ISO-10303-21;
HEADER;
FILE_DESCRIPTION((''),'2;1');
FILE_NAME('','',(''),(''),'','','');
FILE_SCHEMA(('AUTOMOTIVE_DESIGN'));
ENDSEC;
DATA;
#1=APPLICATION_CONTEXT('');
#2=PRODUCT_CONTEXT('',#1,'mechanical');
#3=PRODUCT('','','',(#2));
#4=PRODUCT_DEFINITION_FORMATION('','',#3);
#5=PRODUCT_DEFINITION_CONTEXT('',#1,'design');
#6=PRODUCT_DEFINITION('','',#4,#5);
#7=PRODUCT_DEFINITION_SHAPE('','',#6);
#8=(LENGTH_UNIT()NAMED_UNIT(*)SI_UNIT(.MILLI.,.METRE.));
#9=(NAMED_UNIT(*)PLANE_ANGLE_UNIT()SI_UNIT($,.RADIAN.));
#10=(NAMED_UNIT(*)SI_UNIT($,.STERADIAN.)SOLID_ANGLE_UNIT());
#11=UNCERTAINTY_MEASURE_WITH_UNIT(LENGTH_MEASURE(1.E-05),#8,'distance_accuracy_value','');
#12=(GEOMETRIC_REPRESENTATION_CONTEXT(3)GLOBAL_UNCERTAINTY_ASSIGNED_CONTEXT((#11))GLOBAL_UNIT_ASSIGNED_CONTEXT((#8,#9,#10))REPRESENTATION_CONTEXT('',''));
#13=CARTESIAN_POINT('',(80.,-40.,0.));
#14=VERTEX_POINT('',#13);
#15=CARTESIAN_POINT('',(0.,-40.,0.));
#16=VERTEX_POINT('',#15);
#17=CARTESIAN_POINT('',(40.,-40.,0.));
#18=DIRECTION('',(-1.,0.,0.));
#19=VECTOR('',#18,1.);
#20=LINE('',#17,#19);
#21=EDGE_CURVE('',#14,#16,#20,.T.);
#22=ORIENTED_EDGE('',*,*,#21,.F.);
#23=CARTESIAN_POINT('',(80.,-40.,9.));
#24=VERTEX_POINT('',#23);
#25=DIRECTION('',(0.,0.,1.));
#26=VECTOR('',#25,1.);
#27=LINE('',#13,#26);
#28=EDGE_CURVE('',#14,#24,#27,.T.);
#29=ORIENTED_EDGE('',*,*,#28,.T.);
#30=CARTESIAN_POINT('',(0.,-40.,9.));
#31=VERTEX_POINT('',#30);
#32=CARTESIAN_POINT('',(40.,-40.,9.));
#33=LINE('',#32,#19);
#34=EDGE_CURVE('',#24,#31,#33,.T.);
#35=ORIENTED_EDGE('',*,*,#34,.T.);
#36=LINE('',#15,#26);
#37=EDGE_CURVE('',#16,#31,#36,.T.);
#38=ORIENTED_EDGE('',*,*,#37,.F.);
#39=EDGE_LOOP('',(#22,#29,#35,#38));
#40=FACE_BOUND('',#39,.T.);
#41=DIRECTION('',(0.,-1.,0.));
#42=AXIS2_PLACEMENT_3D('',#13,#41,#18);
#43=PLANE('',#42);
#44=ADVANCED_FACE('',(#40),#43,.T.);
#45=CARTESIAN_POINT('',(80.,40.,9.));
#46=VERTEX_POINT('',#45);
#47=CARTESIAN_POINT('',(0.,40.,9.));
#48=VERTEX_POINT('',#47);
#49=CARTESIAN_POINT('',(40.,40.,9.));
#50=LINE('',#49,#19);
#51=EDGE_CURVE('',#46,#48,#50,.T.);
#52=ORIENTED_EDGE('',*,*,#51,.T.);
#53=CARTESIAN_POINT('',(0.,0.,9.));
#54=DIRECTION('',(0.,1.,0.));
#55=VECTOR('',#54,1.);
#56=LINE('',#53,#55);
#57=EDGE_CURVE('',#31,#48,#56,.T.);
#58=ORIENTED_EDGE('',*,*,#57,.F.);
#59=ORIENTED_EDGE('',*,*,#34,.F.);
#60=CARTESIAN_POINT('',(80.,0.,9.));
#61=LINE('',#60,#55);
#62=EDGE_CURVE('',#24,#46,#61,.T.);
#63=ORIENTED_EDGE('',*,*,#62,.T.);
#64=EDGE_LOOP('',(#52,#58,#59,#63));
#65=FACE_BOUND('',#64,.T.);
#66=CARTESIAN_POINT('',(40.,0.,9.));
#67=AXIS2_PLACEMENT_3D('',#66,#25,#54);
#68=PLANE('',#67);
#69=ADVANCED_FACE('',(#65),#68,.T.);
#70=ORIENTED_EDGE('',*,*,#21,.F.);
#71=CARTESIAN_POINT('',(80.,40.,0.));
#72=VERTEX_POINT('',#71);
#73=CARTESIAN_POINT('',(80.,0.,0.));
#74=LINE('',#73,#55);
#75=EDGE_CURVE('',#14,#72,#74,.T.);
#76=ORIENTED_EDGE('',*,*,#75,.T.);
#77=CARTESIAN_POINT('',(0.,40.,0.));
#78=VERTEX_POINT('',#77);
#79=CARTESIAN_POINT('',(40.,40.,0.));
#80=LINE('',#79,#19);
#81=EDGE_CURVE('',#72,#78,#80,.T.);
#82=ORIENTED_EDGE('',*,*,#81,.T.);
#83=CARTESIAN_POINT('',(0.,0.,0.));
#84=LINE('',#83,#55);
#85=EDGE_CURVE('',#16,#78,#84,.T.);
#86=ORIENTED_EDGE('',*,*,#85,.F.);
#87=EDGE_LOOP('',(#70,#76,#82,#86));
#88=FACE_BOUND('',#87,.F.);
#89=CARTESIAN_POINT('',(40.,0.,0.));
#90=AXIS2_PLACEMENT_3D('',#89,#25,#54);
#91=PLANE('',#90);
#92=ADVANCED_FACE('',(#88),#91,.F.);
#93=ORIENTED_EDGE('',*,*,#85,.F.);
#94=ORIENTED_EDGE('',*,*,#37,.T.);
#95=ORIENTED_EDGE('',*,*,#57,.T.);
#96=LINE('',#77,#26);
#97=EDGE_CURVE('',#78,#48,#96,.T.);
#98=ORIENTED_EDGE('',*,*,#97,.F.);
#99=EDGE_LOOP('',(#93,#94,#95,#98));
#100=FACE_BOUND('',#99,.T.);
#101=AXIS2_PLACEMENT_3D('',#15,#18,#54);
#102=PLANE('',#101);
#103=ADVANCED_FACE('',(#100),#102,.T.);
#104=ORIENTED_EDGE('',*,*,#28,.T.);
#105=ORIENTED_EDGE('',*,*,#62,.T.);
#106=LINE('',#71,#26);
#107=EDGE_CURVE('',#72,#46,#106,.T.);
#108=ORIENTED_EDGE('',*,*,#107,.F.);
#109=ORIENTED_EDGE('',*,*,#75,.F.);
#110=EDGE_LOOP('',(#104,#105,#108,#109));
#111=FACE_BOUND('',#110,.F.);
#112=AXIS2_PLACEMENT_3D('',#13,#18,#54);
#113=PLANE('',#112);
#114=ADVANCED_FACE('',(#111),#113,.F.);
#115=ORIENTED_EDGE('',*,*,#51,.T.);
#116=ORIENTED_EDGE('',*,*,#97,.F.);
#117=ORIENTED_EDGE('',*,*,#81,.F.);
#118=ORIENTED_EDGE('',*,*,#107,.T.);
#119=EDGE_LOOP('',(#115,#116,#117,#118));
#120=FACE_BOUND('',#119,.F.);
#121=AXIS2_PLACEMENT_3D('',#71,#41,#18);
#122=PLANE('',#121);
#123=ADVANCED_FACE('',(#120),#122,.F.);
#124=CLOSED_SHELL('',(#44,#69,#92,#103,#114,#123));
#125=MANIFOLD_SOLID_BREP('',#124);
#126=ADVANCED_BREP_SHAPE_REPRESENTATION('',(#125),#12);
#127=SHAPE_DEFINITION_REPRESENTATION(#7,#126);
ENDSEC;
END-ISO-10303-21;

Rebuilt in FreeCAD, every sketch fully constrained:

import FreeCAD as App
import Part
import Sketcher

doc = App.newDocument("Part")
body = doc.addObject("PartDesign::Body", "Body")

# Sketch on XY plane
sketch1 = body.newObject("Sketcher::SketchObject", "Sketch")
sketch1.AttachmentSupport = (doc.getObject("XY_Plane"), [""])
sketch1.MapMode = "FlatFace"
sketch1.addGeometry([
    Part.LineSegment(App.Vector(0, -40, 0), App.Vector(80, -40, 0)),
    Part.LineSegment(App.Vector(80, -40, 0), App.Vector(80, 40, 0)),
    Part.LineSegment(App.Vector(80, 40, 0), App.Vector(0, 40, 0)),
    Part.LineSegment(App.Vector(0, 40, 0), App.Vector(0, -40, 0)),
], False)
sketch1.addConstraint([
    Sketcher.Constraint("Coincident", 0, 2, 1, 1),
    Sketcher.Constraint("Coincident", 1, 2, 2, 1),
    Sketcher.Constraint("Coincident", 2, 2, 3, 1),
    Sketcher.Constraint("Coincident", 3, 2, 0, 1),
    Sketcher.Constraint("Horizontal", 0),
    Sketcher.Constraint("Vertical", 1),
    Sketcher.Constraint("Horizontal", 2),
    Sketcher.Constraint("Vertical", 3),
    Sketcher.Constraint("Symmetric", 2, 2, 3, 2, -1, 1),
    Sketcher.Constraint("Equal", 2, 1),
    Sketcher.Constraint("DistanceX", 0, 1, 0, 2, 80.0),
])
pad1 = body.newObject("PartDesign::Pad", "Pad")
pad1.Profile = sketch1
pad1.Length = 9

doc.recompute()
